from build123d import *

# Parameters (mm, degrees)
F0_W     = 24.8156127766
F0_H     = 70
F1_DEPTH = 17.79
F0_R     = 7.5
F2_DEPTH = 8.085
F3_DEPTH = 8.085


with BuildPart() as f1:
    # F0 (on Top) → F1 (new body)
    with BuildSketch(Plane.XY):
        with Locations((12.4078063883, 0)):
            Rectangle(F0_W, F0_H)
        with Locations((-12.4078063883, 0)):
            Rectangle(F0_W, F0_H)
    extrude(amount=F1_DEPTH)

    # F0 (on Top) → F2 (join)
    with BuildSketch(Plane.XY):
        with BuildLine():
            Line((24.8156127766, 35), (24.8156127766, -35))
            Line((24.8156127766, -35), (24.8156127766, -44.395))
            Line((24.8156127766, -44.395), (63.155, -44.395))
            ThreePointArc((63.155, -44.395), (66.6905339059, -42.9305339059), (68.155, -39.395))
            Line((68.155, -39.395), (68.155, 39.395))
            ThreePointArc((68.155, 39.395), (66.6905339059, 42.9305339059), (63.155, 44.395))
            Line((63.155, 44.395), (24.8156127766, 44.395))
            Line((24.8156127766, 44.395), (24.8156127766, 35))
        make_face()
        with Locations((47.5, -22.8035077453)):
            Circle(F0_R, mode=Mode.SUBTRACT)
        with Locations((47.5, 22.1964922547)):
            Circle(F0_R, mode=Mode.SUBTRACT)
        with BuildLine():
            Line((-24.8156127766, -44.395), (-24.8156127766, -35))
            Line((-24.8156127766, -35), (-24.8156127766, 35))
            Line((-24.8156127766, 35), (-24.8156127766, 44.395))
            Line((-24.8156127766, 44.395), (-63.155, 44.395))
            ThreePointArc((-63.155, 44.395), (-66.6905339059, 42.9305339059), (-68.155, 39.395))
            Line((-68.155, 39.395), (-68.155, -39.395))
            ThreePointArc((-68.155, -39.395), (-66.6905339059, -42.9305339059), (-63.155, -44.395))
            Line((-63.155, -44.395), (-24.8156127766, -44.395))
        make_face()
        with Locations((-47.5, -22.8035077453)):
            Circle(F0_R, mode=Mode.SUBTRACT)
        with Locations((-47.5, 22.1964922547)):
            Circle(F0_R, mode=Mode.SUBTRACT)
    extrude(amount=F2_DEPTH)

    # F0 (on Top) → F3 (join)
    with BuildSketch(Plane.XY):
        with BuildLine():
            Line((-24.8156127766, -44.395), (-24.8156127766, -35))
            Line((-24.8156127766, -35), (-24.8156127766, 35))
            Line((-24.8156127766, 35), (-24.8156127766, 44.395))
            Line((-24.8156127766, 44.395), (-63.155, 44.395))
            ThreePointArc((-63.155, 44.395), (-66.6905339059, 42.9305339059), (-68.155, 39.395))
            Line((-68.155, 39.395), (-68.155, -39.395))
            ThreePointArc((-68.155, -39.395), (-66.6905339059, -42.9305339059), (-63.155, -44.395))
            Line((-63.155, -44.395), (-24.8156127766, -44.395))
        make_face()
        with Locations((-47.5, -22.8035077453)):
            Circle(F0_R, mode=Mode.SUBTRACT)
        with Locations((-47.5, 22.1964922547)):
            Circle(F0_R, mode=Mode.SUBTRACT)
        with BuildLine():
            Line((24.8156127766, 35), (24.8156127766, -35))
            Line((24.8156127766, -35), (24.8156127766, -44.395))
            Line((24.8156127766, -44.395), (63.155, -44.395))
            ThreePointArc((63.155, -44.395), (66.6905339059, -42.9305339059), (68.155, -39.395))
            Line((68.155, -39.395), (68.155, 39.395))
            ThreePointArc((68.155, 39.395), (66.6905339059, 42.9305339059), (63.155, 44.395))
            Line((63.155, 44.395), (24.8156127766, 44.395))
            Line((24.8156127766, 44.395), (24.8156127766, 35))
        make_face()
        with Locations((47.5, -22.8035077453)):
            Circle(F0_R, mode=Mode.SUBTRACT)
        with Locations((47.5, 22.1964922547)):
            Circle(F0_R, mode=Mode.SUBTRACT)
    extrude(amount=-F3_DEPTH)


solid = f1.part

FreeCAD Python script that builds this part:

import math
import FreeCAD as App
import Part
import Sketcher
from FreeCAD import Vector
Q = App.Units.Quantity


def add_polygon(sketch, points):
    """Adds a closed chain of lines whose ends are joined by coincident constraints."""
    first, n = sketch.GeometryCount, len(points)
    for a, b in zip(points, points[1:] + points[:1]):
        sketch.addGeometry(Part.LineSegment(App.Vector(*a, 0), App.Vector(*b, 0)), False)
    for i in range(n):
        sketch.addConstraint(Sketcher.Constraint("Coincident", first + i, 2, first + (i + 1) % n, 1))

doc = App.newDocument("Part")
params = doc.addObject("Spreadsheet::Sheet", "Params")
for row, (alias, value) in enumerate([
    ("sketch1_height", "70 mm"),
    ("pad1_length", "17.79 mm"),
    ("sketch2_diameter", "15 mm"),
    ("sketch2_radius", "5 mm"),
    ("sketch2_height", "78.79 mm"),
    ("pad2_length", "8.085 mm"),
    ("sketch3_diameter", "15 mm"),
    ("sketch3_radius", "5 mm"),
    ("sketch3_height", "88.79 mm"),
    ("pad3_length", "8.085 mm"),
], start=1):
    params.set(f"A{row}", alias)
    params.set(f"B{row}", "=" + value)
    params.setAlias(f"B{row}", alias)

body = doc.addObject("PartDesign::Body", "Body")

sketch1 = body.newObject("Sketcher::SketchObject", "Sketch")
sketch1.AttachmentSupport = (doc.getObject("XY_Plane"), [""])
sketch1.MapMode = "FlatFace"
add_polygon(sketch1, [(24.815613, -35), (24.815613, 35), (-24.815613, 35), (-24.815613, -35)])
sketch1.addConstraint([
    Sketcher.Constraint("Vertical", 0),
    Sketcher.Constraint("Horizontal", 1),
    Sketcher.Constraint("Vertical", 2),
    Sketcher.Constraint("Horizontal", 3),
    Sketcher.Constraint("Symmetric", 0, 2, 2, 2, -1, 1),
    Sketcher.Constraint("DistanceY", 0, 1, 0, 2, Q("70 mm")),
    Sketcher.Constraint("DistanceX", 1, 2, 1, 1, Q("49.631226 mm")),
])
sketch1.setExpression("Constraints[9]", "Params.sketch1_height")
pad1 = body.newObject("PartDesign::Pad", "Pad")
pad1.Profile = sketch1
pad1.setExpression("Length", "Params.pad1_length")

sketch2 = body.newObject("Sketcher::SketchObject", "Sketch001")
sketch2.AttachmentSupport = (doc.getObject("XY_Plane"), [""])
sketch2.MapMode = "FlatFace"
sketch2.addGeometry([
    Part.LineSegment(Vector(24.815613, -44.395, 0), Vector(63.155, -44.395, 0)),
    Part.ArcOfCircle(Part.Circle(Vector(63.155, -39.395, 0), Vector(0, 0, 1), 5), math.radians(-90), math.radians(0)),
    Part.LineSegment(Vector(68.155, -39.395, 0), Vector(68.155, 39.395, 0)),
    Part.ArcOfCircle(Part.Circle(Vector(63.155, 39.395, 0), Vector(0, 0, 1), 5), math.radians(0), math.radians(90)),
    Part.LineSegment(Vector(63.155, 44.395, 0), Vector(24.815613, 44.395, 0)),
    Part.LineSegment(Vector(24.815613, 44.395, 0), Vector(24.815613, -44.395, 0)),
    Part.Circle(Vector(47.5, -22.803508, 0), Vector(0, 0, 1), 7.5),
    Part.Circle(Vector(47.5, 22.196492, 0), Vector(0, 0, 1), 7.5),
    Part.LineSegment(Vector(-24.815613, -44.395, 0), Vector(-24.815613, 44.395, 0)),
    Part.LineSegment(Vector(-24.815613, 44.395, 0), Vector(-63.155, 44.395, 0)),
    Part.ArcOfCircle(Part.Circle(Vector(-63.155, 39.395, 0), Vector(0, 0, 1), 5), math.radians(90), math.radians(180)),
    Part.LineSegment(Vector(-68.155, 39.395, 0), Vector(-68.155, -39.395, 0)),
    Part.ArcOfCircle(Part.Circle(Vector(-63.155, -39.395, 0), Vector(0, 0, 1), 5), math.radians(180), math.radians(270)),
    Part.LineSegment(Vector(-63.155, -44.395, 0), Vector(-24.815613, -44.395, 0)),
    Part.Circle(Vector(-47.5, -22.803508, 0), Vector(0, 0, 1), 7.5),
    Part.Circle(Vector(-47.5, 22.196492, 0), Vector(0, 0, 1), 7.5),
], False)
sketch2.addConstraint([
    Sketcher.Constraint("Tangent", 0, 2, 1, 1),
    Sketcher.Constraint("Tangent", 1, 2, 2, 1),
    Sketcher.Constraint("Tangent", 2, 2, 3, 1),
    Sketcher.Constraint("Tangent", 3, 2, 4, 1),
    Sketcher.Constraint("Coincident", 4, 2, 5, 1),
    Sketcher.Constraint("Coincident", 5, 2, 0, 1),
    Sketcher.Constraint("Coincident", 8, 2, 9, 1),
    Sketcher.Constraint("Tangent", 9, 2, 10, 1),
    Sketcher.Constraint("Tangent", 10, 2, 11, 1),
    Sketcher.Constraint("Tangent", 11, 2, 12, 1),
    Sketcher.Constraint("Tangent", 12, 2, 13, 1),
    Sketcher.Constraint("Coincident", 13, 2, 8, 1),
    Sketcher.Constraint("Horizontal", 0),
    Sketcher.Constraint("Vertical", 2),
    Sketcher.Constraint("Horizontal", 4),
    Sketcher.Constraint("Vertical", 5),
    Sketcher.Constraint("Vertical", 8),
    Sketcher.Constraint("Horizontal", 9),
    Sketcher.Constraint("Vertical", 11),
    Sketcher.Constraint("Horizontal", 13),
    Sketcher.Constraint("Equal", 1, 3),
    Sketcher.Constraint("Equal", 6, 7),
    Sketcher.Constraint("Equal", 3, 10),
    Sketcher.Constraint("Equal", 10, 12),
    Sketcher.Constraint("Equal", 7, 14),
    Sketcher.Constraint("Equal", 14, 15),
    Sketcher.Constraint("Symmetric", 1, 3, 10, 3, -1, 1),
    Sketcher.Constraint("Symmetric", 4, 2, 13, 2, -1, 1),
    Sketcher.Constraint("Symmetric", 6, 3, 14, 3, -2),
    Sketcher.Constraint("Symmetric", 7, 3, 15, 3, -2),
    Sketcher.Constraint("Horizontal", 3, 3, 10, 3),
    Sketcher.Constraint("Vertical", 6, 3, 7, 3),
    Sketcher.Constraint("Diameter", 6, Q("15 mm")),
    Sketcher.Constraint("Radius", 1, Q("5 mm")),
    Sketcher.Constraint("DistanceY", 6, 3, 7, 3, Q("45 mm")),
    Sketcher.Constraint("DistanceX", 14, 3, 6, 3, Q("95 mm")),
    Sketcher.Constraint("DistanceY", 2, 1, 2, 2, Q("78.79 mm")),
    Sketcher.Constraint("DistanceX", 10, 3, 3, 3, Q("126.31 mm")),
    Sketcher.Constraint("DistanceX", 0, 1, 0, 2, Q("38.339387 mm")),
    Sketcher.Constraint("DistanceY", 6, 3, -1, 1, Q("22.803508 mm")),
])
sketch2.setExpression("Constraints[32]", "Params.sketch2_diameter")
sketch2.setExpression("Constraints[33]", "Params.sketch2_radius")
sketch2.setExpression("Constraints[36]", "Params.sketch2_height")
pad2 = body.newObject("PartDesign::Pad", "Pad001")
pad2.Profile = sketch2
pad2.setExpression("Length", "Params.pad2_length")

sketch3 = body.newObject("Sketcher::SketchObject", "Sketch002")
sketch3.AttachmentSupport = (doc.getObject("XY_Plane"), [""])
sketch3.MapMode = "FlatFace"
sketch3.addGeometry([
    Part.LineSegment(Vector(-24.815613, -44.395, 0), Vector(-24.815613, 44.395, 0)),
    Part.LineSegment(Vector(-24.815613, 44.395, 0), Vector(-63.155, 44.395, 0)),
    Part.ArcOfCircle(Part.Circle(Vector(-63.155, 39.395, 0), Vector(0, 0, 1), 5), math.radians(90), math.radians(180)),
    Part.LineSegment(Vector(-68.155, 39.395, 0), Vector(-68.155, -39.395, 0)),
    Part.ArcOfCircle(Part.Circle(Vector(-63.155, -39.395, 0), Vector(0, 0, 1), 5), math.radians(180), math.radians(270)),
    Part.LineSegment(Vector(-63.155, -44.395, 0), Vector(-24.815613, -44.395, 0)),
    Part.Circle(Vector(-47.5, -22.803508, 0), Vector(0, 0, 1), 7.5),
    Part.Circle(Vector(-47.5, 22.196492, 0), Vector(0, 0, 1), 7.5),
    Part.LineSegment(Vector(24.815613, -44.395, 0), Vector(63.155, -44.395, 0)),
    Part.ArcOfCircle(Part.Circle(Vector(63.155, -39.395, 0), Vector(0, 0, 1), 5), math.radians(-90), math.radians(0)),
    Part.LineSegment(Vector(68.155, -39.395, 0), Vector(68.155, 39.395, 0)),
    Part.ArcOfCircle(Part.Circle(Vector(63.155, 39.395, 0), Vector(0, 0, 1), 5), math.radians(0), math.radians(90)),
    Part.LineSegment(Vector(63.155, 44.395, 0), Vector(24.815613, 44.395, 0)),
    Part.LineSegment(Vector(24.815613, 44.395, 0), Vector(24.815613, -44.395, 0)),
    Part.Circle(Vector(47.5, -22.803508, 0), Vector(0, 0, 1), 7.5),
    Part.Circle(Vector(47.5, 22.196492, 0), Vector(0, 0, 1), 7.5),
], False)
sketch3.addConstraint([
    Sketcher.Constraint("Coincident", 0, 2, 1, 1),
    Sketcher.Constraint("Tangent", 1, 2, 2, 1),
    Sketcher.Constraint("Tangent", 2, 2, 3, 1),
    Sketcher.Constraint("Tangent", 3, 2, 4, 1),
    Sketcher.Constraint("Tangent", 4, 2, 5, 1),
    Sketcher.Constraint("Coincident", 5, 2, 0, 1),
    Sketcher.Constraint("Tangent", 8, 2, 9, 1),
    Sketcher.Constraint("Tangent", 9, 2, 10, 1),
    Sketcher.Constraint("Tangent", 10, 2, 11, 1),
    Sketcher.Constraint("Tangent", 11, 2, 12, 1),
    Sketcher.Constraint("Coincident", 12, 2, 13, 1),
    Sketcher.Constraint("Coincident", 13, 2, 8, 1),
    Sketcher.Constraint("Vertical", 0),
    Sketcher.Constraint("Horizontal", 1),
    Sketcher.Constraint("Vertical", 3),
    Sketcher.Constraint("Horizontal", 5),
    Sketcher.Constraint("Horizontal", 8),
    Sketcher.Constraint("Vertical", 10),
    Sketcher.Constraint("Horizontal", 12),
    Sketcher.Constraint("Vertical", 13),
    Sketcher.Constraint("Equal", 2, 4),
    Sketcher.Constraint("Equal", 6, 7),
    Sketcher.Constraint("Equal", 4, 9),
    Sketcher.Constraint("Equal", 9, 11),
    Sketcher.Constraint("Equal", 7, 14),
    Sketcher.Constraint("Equal", 14, 15),
    Sketcher.Constraint("Symmetric", 2, 3, 9, 3, -1, 1),
    Sketcher.Constraint("Symmetric", 5, 2, 12, 2, -1, 1),
    Sketcher.Constraint("Symmetric", 6, 3, 14, 3, -2),
    Sketcher.Constraint("Symmetric", 7, 3, 15, 3, -2),
    Sketcher.Constraint("Horizontal", 4, 3, 9, 3),
    Sketcher.Constraint("Vertical", 6, 3, 7, 3),
    Sketcher.Constraint("Diameter", 6, Q("15 mm")),
    Sketcher.Constraint("Radius", 2, Q("5 mm")),
    Sketcher.Constraint("DistanceY", 6, 3, 7, 3, Q("45 mm")),
    Sketcher.Constraint("DistanceX", 6, 3, 14, 3, Q("95 mm")),
    Sketcher.Constraint("DistanceY", 0, 1, 0, 2, Q("88.79 mm")),
    Sketcher.Constraint("DistanceX", 4, 3, 9, 3, Q("126.31 mm")),
    Sketcher.Constraint("DistanceX", 1, 2, 1, 1, Q("38.339387 mm")),
    Sketcher.Constraint("DistanceY", 6, 3, -1, 1, Q("22.803508 mm")),
])
sketch3.setExpression("Constraints[32]", "Params.sketch3_diameter")
sketch3.setExpression("Constraints[33]", "Params.sketch3_radius")
sketch3.setExpression("Constraints[36]", "Params.sketch3_height")
pad3 = body.newObject("PartDesign::Pad", "Pad002")
pad3.Profile = sketch3
pad3.setExpression("Length", "Params.pad3_length")
pad3.Reversed = True

doc.recompute()
